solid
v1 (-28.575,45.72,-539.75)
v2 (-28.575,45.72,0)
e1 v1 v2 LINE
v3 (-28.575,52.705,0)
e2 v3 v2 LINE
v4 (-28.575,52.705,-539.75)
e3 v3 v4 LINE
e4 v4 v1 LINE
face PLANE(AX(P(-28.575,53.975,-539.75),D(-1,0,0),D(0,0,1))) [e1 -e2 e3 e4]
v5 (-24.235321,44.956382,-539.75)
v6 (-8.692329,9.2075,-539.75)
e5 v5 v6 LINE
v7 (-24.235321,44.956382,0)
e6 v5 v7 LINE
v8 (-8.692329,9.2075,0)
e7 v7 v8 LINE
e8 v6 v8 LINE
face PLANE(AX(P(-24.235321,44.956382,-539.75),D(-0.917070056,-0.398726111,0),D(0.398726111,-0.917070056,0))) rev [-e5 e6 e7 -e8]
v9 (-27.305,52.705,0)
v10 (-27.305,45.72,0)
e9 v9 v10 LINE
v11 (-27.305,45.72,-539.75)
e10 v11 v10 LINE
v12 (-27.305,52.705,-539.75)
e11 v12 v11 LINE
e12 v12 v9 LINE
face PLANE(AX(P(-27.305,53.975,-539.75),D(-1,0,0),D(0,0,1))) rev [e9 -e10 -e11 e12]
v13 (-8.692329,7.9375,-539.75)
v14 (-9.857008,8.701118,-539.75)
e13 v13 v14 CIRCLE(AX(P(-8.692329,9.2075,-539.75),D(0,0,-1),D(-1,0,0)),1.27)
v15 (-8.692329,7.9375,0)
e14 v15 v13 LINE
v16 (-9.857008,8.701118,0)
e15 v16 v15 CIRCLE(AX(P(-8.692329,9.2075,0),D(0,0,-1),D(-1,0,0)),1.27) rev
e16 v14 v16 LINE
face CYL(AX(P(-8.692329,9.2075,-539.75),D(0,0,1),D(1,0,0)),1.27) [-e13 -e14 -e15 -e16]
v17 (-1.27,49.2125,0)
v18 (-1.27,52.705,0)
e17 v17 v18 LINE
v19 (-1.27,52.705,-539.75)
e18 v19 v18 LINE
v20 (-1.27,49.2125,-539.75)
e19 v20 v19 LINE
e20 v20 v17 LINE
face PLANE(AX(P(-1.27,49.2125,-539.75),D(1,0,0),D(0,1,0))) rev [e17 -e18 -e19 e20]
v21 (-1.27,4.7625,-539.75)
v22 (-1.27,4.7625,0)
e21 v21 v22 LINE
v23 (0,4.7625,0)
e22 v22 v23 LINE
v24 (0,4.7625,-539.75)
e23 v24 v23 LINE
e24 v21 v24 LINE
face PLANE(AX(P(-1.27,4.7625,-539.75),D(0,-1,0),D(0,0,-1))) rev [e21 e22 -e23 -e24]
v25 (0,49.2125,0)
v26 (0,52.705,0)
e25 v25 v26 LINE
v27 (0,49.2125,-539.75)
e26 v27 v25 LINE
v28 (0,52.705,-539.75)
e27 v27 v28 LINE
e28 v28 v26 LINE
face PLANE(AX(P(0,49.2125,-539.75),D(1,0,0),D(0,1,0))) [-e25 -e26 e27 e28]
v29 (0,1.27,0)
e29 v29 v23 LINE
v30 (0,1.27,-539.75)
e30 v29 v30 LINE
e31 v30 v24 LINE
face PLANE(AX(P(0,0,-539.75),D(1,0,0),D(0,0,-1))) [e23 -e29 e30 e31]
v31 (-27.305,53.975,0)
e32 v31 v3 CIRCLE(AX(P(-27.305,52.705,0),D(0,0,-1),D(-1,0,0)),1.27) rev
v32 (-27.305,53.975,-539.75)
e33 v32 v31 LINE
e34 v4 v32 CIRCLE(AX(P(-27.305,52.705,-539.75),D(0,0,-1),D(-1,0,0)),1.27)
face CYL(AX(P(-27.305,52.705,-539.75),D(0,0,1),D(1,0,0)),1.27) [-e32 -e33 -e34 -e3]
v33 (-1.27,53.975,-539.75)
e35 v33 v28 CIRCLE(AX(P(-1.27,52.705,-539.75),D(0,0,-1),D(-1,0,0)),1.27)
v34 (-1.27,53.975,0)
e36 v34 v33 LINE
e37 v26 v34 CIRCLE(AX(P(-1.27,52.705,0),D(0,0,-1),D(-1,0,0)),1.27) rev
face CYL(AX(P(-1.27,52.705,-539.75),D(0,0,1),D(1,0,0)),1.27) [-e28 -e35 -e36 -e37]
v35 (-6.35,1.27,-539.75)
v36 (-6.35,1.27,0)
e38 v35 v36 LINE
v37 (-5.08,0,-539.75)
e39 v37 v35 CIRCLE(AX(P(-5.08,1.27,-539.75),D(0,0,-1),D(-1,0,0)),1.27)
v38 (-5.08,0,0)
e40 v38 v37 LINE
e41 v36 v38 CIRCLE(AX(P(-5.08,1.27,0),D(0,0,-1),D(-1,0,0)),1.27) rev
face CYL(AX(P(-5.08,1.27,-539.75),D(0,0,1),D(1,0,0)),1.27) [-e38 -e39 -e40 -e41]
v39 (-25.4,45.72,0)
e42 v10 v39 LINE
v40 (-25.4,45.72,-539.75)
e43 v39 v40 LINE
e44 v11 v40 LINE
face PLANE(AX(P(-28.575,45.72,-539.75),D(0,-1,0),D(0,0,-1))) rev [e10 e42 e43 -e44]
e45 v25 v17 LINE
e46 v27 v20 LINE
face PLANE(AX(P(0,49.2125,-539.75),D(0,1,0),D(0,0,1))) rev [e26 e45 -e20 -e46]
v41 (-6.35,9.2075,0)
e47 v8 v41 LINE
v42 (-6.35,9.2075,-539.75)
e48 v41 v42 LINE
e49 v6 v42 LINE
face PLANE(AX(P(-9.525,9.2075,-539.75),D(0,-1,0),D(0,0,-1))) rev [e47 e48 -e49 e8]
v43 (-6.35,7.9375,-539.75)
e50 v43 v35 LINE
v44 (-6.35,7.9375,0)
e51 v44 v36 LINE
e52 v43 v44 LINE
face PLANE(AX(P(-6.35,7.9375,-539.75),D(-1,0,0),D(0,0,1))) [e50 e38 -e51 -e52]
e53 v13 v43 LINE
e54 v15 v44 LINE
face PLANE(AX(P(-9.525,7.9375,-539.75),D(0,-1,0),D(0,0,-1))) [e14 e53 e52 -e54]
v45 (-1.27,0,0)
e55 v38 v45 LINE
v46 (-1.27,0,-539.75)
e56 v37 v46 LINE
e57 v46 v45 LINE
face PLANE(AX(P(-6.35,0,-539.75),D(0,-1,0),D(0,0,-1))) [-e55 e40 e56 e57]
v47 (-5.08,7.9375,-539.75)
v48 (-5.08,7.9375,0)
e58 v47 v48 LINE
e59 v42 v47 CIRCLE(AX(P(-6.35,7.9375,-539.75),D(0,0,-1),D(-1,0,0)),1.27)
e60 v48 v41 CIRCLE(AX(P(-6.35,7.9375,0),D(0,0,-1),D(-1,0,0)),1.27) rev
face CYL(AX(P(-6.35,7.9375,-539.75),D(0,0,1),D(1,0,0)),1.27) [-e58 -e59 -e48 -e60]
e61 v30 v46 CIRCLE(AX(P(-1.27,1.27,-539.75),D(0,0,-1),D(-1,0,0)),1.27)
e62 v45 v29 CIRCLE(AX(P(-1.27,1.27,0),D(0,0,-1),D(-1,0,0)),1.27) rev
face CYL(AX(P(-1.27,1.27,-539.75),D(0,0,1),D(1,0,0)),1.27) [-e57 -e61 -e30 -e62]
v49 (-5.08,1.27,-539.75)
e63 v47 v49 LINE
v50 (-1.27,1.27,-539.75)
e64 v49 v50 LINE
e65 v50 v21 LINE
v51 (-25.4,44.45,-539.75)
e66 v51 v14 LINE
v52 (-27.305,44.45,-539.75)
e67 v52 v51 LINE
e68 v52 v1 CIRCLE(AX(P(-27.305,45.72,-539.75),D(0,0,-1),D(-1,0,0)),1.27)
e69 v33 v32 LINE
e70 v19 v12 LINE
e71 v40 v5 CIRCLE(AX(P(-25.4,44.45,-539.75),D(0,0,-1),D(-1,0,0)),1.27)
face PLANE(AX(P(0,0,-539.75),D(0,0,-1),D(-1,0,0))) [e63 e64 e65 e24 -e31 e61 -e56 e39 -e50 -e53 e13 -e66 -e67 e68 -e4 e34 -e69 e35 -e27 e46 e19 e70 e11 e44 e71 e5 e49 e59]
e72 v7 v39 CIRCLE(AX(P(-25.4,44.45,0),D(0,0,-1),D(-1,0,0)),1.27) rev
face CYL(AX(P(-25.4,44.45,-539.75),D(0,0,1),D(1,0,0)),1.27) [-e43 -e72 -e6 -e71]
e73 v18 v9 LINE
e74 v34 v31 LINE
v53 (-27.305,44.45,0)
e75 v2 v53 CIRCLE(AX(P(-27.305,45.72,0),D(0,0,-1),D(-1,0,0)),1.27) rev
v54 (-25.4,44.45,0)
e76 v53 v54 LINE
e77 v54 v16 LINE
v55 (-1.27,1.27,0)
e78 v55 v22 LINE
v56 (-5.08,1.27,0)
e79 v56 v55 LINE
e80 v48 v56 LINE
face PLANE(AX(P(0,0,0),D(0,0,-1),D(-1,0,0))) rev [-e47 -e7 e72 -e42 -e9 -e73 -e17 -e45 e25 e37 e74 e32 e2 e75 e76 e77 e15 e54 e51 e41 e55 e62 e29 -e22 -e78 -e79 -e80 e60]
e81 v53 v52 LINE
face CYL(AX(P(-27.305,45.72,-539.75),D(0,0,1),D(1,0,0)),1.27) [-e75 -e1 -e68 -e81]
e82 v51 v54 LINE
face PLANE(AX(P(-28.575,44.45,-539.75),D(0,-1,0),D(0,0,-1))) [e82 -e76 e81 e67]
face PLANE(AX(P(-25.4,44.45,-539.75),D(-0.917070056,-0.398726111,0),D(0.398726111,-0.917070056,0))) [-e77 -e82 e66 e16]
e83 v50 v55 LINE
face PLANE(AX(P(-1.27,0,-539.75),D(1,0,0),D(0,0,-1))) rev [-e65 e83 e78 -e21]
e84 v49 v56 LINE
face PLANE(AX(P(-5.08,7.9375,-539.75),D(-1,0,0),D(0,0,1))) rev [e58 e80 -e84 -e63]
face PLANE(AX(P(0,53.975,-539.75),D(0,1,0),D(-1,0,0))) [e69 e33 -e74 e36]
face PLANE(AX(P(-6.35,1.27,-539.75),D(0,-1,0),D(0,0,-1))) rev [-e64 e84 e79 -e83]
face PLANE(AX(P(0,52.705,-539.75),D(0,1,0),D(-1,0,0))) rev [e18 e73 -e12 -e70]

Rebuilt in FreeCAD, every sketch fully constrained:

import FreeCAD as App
import Part
import Sketcher

V = App.Vector
Q = App.Units.Quantity


def edges_at(feature, points):
    """Names of the edges that pass closest to the given points."""
    edges = feature.Shape.Edges
    near = lambda p: min(range(len(edges)), key=lambda i: edges[i].distToShape(Part.Vertex(*p))[0])
    return sorted({f"Edge{near(p) + 1}" for p in points})

doc = App.newDocument("Part")
params = doc.addObject("Spreadsheet::Sheet", "Params")
for row, (alias, value) in enumerate([
    ("sketch1_width", "0.25 in"),
    ("sketch1_width2", "0.05 in"),
    ("sketch1_width3", "0.15 in"),
    ("sketch1_width4", "1.125 in"),
    ("sketch1_width5", "1.025 in"),
    ("pad1_length", "21.25 in"),
    ("fillet_radius", "0.05 in"),
], start=1):
    params.set(f"A{row}", alias)
    params.set(f"B{row}", "=" + value)
    params.setAlias(f"B{row}", alias)

body = doc.addObject("PartDesign::Body", "Body")

# Sketch on XY plane
sketch1 = doc.addObject("Sketcher::SketchObject", "Sketch")
body.addObject(sketch1)
sketch1.AttachmentSupport = (doc.XY_Plane, [""])
sketch1.MapMode = "FlatFace"
sketch1.addGeometry([
    Part.LineSegment(V(0, 49.2, 0), V(0, 54, 0)),  # 0
    Part.LineSegment(V(0, 54, 0), V(-28.6, 54, 0)),  # 1
    Part.LineSegment(V(-28.6, 54, 0), V(-28.6, 44.5, 0)),  # 2
    Part.LineSegment(V(-28.6, 44.5, 0), V(-25.4, 44.5, 0)),  # 3
    Part.LineSegment(V(-25.4, 44.5, 0), V(-9.5, 7.9, 0)),  # 4
    Part.LineSegment(V(-9.5, 7.9, 0), V(-6.3, 7.9, 0)),  # 5
    Part.LineSegment(V(-6.3, 7.9, 0), V(-6.3, 0, 0)),  # 6
    Part.LineSegment(V(-6.3, 0, 0), V(0, 0, 0)),  # 7
    Part.LineSegment(V(0, 0, 0), V(0, 4.8, 0)),  # 8
    Part.LineSegment(V(0, 4.8, 0), V(-1.3, 4.8, 0)),  # 9
    Part.LineSegment(V(-1.3, 4.8, 0), V(-1.3, 1.3, 0)),  # 10
    Part.LineSegment(V(-1.3, 1.3, 0), V(-5.1, 1.3, 0)),  # 11
    Part.LineSegment(V(-5.1, 1.3, 0), V(-5.1, 9.2, 0)),  # 12
    Part.LineSegment(V(-5.1, 9.2, 0), V(-8.7, 9.2, 0)),  # 13
    Part.LineSegment(V(-8.7, 9.2, 0), V(-24.6, 45.7, 0)),  # 14
    Part.LineSegment(V(-24.6, 45.7, 0), V(-27.3, 45.7, 0)),  # 15
    Part.LineSegment(V(-27.3, 45.7, 0), V(-27.3, 52.7, 0)),  # 16
    Part.LineSegment(V(-27.3, 52.7, 0), V(-1.3, 52.7, 0)),  # 17
    Part.LineSegment(V(-1.3, 52.7, 0), V(-1.3, 49.2, 0)),  # 18
    Part.LineSegment(V(-1.3, 49.2, 0), V(0, 49.2, 0)),  # 19
], False)
sketch1.addConstraint([
    Sketcher.Constraint("Coincident", 0, 2, 1, 1),
    Sketcher.Constraint("Coincident", 1, 2, 2, 1),
    Sketcher.Constraint("Coincident", 2, 2, 3, 1),
    Sketcher.Constraint("Coincident", 3, 2, 4, 1),
    Sketcher.Constraint("Coincident", 4, 2, 5, 1),
    Sketcher.Constraint("Coincident", 5, 2, 6, 1),
    Sketcher.Constraint("Coincident", 6, 2, 7, 1),
    Sketcher.Constraint("Coincident", 7, 2, 8, 1),
    Sketcher.Constraint("Coincident", 8, 2, 9, 1),
    Sketcher.Constraint("Coincident", 9, 2, 10, 1),
    Sketcher.Constraint("Coincident", 10, 2, 11, 1),
    Sketcher.Constraint("Coincident", 11, 2, 12, 1),
    Sketcher.Constraint("Coincident", 12, 2, 13, 1),
    Sketcher.Constraint("Coincident", 13, 2, 14, 1),
    Sketcher.Constraint("Coincident", 14, 2, 15, 1),
    Sketcher.Constraint("Coincident", 15, 2, 16, 1),
    Sketcher.Constraint("Coincident", 16, 2, 17, 1),
    Sketcher.Constraint("Coincident", 17, 2, 18, 1),
    Sketcher.Constraint("Coincident", 18, 2, 19, 1),
    Sketcher.Constraint("Coincident", 19, 2, 0, 1),
    Sketcher.Constraint("Vertical", 0),
    Sketcher.Constraint("Horizontal", 1),
    Sketcher.Constraint("Vertical", 2),
    Sketcher.Constraint("Horizontal", 3),
    Sketcher.Constraint("Horizontal", 5),
    Sketcher.Constraint("Vertical", 6),
    Sketcher.Constraint("Horizontal", 7),
    Sketcher.Constraint("Vertical", 8),
    Sketcher.Constraint("Horizontal", 9),
    Sketcher.Constraint("Vertical", 10),
    Sketcher.Constraint("Horizontal", 11),
    Sketcher.Constraint("Vertical", 12),
    Sketcher.Constraint("Horizontal", 13),
    Sketcher.Constraint("Horizontal", 15),
    Sketcher.Constraint("Vertical", 16),
    Sketcher.Constraint("Horizontal", 17),
    Sketcher.Constraint("Vertical", 18),
    Sketcher.Constraint("Horizontal", 19),
    Sketcher.Constraint("Coincident", 7, 2, -1, 1),
    Sketcher.Constraint("PointOnObject", 0, 2, -2),
    Sketcher.Constraint("Parallel", 4, 14),
    Sketcher.Constraint("Vertical", 10, 2, 17, 2),
    Sketcher.Constraint("Equal", 3, 5),
    Sketcher.Constraint("Equal", 0, 8),
    Sketcher.Constraint("Equal", 6, 12),
    Sketcher.Constraint("Equal", 10, 18),
    Sketcher.Constraint("Equal", 4, 14),
    Sketcher.Constraint("DistanceX", 3, 2, -1, 1, Q("1 in")),
    Sketcher.Constraint("DistanceX", 7, 1, 7, 2, Q("0.25 in")),
    Sketcher.Constraint("DistanceX", 9, 2, 9, 1, Q("0.05 in")),
    Sketcher.Constraint("DistanceX", 11, 2, 11, 1, Q("0.15 in")),
    Sketcher.Constraint("DistanceY", -1, 1, 14, 2, Q("1.8 in")),
    Sketcher.Constraint("DistanceX", 1, 2, 1, 1, Q("1.125 in")),
    Sketcher.Constraint("DistanceX", 17, 1, 17, 2, Q("1.025 in")),
    Sketcher.Constraint("DistanceY", 0, 1, 0, 2, Q("0.1875 in")),
    Sketcher.Constraint("DistanceY", 2, 2, 2, 1, Q("0.375 in")),
    Sketcher.Constraint("DistanceY", 6, 2, 6, 1, Q("0.3125 in")),
    Sketcher.Constraint("DistanceY", 16, 1, 16, 2, Q("0.275 in")),
    Sketcher.Constraint("DistanceX", 13, 2, 13, 1, 3.612329),
])
sketch1.setExpression("Constraints[48]", "Params.sketch1_width")
sketch1.setExpression("Constraints[49]", "Params.sketch1_width2")
sketch1.setExpression("Constraints[50]", "Params.sketch1_width3")
sketch1.setExpression("Constraints[52]", "Params.sketch1_width4")
sketch1.setExpression("Constraints[53]", "Params.sketch1_width5")
pad1 = doc.addObject("PartDesign::Pad", "Pad")
body.addObject(pad1)
pad1.Profile = sketch1
pad1.setExpression("Length", "Params.pad1_length")
pad1.Reversed = True
doc.recompute()

fillet = doc.addObject("PartDesign::Fillet", "Fillet")
body.addObject(fillet)
fillet.Base = (pad1, edges_at(pad1, [
    (0, 0, -269.875),
    (-6.35, 0, -269.875),
    (-9.525, 7.938, -269.875),
    (-28.575, 44.45, -269.875),
    (-28.575, 53.975, -269.875),
    (0, 53.975, -269.875),
    (-24.567, 45.72, -269.875),
    (-5.08, 9.207, -269.875),
]))
fillet.setExpression("Radius", "Params.fillet_radius")

doc.recompute()
